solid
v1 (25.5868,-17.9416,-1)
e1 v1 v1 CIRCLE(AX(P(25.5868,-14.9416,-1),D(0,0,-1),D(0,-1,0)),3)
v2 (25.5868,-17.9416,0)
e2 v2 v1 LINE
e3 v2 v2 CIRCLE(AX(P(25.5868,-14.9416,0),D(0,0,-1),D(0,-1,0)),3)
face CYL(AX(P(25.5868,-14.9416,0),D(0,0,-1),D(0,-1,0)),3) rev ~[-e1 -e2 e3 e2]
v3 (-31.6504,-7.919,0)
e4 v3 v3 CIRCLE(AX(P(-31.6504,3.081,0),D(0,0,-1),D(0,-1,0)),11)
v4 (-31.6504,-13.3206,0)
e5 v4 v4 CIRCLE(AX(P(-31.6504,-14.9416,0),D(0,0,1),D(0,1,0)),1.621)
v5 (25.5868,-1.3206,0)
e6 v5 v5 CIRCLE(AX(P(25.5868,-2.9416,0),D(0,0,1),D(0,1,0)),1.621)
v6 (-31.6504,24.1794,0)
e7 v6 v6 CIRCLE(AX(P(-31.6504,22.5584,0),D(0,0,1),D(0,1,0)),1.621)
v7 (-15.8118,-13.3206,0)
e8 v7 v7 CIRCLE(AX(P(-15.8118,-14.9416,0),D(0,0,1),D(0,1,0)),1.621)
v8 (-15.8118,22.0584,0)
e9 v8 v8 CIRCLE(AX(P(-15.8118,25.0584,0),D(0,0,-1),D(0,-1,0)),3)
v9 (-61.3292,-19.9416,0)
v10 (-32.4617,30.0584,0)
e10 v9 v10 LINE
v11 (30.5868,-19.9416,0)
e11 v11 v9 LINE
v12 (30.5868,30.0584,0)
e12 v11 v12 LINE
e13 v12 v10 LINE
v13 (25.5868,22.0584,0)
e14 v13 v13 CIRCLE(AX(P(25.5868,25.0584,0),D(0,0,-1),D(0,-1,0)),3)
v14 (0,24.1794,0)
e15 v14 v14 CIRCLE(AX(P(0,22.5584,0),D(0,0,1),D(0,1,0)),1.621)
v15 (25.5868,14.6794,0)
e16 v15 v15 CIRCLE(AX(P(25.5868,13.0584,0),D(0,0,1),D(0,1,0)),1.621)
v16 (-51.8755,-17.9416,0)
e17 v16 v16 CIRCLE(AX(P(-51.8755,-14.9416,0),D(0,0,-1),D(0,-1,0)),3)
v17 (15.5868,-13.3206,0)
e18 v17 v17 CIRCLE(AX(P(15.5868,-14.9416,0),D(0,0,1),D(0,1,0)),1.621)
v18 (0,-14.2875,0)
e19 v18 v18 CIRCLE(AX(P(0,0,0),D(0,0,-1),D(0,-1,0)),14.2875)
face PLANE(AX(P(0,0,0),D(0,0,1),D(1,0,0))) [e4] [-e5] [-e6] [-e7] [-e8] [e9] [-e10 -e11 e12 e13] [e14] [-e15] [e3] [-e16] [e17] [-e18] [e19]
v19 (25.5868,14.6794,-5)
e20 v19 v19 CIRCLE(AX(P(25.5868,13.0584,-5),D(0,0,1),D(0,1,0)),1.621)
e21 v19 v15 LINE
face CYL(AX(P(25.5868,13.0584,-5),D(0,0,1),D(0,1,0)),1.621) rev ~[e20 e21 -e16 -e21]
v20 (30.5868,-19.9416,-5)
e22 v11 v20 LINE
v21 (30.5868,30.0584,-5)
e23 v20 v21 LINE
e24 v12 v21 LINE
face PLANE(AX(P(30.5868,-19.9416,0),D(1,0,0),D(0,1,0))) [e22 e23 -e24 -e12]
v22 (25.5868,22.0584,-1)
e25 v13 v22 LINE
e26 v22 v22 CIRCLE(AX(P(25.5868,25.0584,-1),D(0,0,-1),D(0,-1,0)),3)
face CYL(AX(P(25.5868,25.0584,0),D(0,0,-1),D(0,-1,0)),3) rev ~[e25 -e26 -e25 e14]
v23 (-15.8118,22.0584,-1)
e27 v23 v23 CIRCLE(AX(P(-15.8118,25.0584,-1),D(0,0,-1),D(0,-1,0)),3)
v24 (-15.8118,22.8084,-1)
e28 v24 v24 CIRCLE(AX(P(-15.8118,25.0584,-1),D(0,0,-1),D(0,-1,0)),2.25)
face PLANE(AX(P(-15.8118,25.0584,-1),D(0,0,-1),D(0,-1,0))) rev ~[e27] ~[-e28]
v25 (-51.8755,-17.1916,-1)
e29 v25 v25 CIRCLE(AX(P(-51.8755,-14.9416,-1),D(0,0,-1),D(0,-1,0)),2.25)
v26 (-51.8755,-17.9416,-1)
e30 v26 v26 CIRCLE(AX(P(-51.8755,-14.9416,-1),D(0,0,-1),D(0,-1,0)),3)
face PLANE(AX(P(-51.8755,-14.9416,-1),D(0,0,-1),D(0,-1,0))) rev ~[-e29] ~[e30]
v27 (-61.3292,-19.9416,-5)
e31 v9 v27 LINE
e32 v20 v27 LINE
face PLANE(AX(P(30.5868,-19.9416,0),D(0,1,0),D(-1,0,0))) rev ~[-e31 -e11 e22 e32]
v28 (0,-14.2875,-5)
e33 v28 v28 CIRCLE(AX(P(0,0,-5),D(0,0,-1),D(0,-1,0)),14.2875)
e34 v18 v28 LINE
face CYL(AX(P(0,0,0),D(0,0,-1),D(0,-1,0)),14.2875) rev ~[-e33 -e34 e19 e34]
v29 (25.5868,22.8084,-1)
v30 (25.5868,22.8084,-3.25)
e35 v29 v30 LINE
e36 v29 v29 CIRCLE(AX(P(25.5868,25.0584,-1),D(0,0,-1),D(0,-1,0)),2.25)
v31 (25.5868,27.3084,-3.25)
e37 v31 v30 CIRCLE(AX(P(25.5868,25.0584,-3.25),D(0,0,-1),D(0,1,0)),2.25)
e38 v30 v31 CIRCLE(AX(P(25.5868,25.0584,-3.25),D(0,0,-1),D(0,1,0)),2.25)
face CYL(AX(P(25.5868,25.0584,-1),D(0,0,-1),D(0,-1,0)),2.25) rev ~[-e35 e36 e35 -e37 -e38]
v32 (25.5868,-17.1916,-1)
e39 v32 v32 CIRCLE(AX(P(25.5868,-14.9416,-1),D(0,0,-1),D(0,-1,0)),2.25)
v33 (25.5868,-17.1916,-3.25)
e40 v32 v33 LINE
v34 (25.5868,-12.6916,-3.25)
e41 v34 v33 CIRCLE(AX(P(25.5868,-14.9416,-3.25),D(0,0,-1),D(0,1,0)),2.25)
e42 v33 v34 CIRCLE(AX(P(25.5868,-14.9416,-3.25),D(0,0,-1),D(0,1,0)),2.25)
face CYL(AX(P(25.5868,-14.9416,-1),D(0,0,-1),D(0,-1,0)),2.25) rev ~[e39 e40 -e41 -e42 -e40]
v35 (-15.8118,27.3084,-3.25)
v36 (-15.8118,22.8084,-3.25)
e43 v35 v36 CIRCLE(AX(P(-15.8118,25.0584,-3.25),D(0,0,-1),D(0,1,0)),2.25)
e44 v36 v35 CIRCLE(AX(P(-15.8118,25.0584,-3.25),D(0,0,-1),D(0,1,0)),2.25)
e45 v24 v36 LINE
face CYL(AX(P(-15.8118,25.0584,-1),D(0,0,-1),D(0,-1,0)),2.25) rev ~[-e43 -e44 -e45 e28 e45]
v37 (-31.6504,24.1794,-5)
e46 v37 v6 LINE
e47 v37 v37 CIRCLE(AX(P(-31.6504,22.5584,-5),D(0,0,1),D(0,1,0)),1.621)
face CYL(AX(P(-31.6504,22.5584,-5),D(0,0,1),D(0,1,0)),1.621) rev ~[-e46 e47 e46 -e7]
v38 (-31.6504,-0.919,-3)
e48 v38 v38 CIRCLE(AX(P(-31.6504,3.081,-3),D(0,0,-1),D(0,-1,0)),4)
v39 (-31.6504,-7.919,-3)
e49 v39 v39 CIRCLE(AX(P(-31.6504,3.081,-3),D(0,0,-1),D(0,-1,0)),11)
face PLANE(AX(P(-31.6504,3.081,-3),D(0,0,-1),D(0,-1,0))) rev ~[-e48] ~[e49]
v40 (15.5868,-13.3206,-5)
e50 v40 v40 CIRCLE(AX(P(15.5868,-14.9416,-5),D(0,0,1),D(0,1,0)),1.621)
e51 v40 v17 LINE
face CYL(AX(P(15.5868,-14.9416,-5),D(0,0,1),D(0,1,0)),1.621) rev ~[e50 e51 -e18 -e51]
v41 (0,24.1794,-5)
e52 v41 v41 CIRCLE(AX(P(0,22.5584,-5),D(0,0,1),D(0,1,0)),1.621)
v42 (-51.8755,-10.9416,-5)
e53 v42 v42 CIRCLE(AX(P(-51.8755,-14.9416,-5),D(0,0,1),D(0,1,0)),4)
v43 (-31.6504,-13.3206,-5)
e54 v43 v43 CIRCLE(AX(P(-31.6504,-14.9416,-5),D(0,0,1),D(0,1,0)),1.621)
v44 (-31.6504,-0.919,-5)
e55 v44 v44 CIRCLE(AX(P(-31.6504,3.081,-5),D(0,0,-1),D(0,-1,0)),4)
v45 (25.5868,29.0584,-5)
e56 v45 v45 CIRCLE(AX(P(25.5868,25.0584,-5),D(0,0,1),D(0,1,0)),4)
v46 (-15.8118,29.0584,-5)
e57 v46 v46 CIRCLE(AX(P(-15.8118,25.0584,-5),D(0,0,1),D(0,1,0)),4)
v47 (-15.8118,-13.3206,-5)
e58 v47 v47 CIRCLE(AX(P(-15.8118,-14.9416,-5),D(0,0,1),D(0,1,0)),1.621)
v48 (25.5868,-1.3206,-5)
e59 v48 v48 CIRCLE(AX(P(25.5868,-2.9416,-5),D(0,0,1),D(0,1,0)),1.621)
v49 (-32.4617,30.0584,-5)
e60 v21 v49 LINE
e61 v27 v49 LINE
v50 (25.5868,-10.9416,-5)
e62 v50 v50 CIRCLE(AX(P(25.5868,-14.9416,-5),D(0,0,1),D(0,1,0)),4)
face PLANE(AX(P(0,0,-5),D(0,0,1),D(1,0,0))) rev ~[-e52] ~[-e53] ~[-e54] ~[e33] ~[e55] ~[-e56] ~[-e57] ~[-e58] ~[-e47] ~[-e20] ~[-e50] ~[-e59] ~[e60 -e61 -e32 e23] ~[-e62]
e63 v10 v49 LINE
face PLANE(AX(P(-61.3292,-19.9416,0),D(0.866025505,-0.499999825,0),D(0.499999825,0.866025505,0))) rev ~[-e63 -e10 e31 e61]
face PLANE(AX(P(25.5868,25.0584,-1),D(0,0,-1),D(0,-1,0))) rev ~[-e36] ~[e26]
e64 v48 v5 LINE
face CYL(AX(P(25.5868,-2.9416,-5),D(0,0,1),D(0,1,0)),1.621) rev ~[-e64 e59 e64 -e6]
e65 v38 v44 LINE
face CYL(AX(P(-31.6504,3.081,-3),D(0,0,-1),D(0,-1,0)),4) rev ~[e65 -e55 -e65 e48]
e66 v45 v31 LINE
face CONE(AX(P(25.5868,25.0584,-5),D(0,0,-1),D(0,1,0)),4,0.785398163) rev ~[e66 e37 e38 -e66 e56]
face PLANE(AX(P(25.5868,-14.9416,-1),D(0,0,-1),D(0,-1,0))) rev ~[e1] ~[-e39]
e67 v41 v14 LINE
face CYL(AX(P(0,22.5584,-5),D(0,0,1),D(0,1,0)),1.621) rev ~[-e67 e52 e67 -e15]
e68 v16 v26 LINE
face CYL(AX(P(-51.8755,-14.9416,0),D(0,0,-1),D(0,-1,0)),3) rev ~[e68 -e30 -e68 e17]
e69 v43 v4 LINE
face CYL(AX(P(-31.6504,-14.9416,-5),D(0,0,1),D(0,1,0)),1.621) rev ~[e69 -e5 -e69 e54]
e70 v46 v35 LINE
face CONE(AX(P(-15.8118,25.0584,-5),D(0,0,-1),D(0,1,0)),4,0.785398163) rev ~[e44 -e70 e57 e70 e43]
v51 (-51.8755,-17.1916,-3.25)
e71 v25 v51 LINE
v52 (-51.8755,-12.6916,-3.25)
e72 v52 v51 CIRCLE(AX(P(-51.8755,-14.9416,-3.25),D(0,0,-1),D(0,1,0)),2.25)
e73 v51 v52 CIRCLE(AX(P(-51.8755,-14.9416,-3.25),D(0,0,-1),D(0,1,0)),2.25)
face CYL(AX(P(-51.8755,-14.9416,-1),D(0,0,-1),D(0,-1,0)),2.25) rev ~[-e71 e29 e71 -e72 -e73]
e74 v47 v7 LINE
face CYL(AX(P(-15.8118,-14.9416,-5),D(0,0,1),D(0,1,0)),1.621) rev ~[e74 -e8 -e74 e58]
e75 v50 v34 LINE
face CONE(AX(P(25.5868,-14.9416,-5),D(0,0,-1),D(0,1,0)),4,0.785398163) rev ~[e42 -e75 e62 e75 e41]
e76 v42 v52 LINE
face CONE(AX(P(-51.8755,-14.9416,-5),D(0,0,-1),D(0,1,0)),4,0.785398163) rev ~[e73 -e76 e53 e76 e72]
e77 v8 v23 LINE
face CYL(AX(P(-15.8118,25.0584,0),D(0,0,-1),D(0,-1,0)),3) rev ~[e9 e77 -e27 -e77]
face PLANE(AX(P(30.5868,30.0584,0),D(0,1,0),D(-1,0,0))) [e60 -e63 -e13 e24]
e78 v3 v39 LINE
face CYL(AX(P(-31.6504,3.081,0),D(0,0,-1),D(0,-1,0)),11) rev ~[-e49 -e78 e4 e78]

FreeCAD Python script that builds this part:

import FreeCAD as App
import Part
import Sketcher
Q = App.Units.Quantity

doc = App.newDocument("Part")
body = doc.addObject("PartDesign::Body", "Body")

sketch1 = body.newObject("Sketcher::SketchObject", "Sketch")
sketch1.AttachmentSupport = (doc.getObject("XY_Plane"), [""])
sketch1.MapMode = "FlatFace"
sketch1.addGeometry([
    Part.LineSegment(App.Vector(-61, -20, 0), App.Vector(31, -20, 0)),
    Part.LineSegment(App.Vector(31, -20, 0), App.Vector(31, 30, 0)),
    Part.LineSegment(App.Vector(31, 30, 0), App.Vector(-32, 30, 0)),
    Part.LineSegment(App.Vector(-32, 30, 0), App.Vector(-61, -20, 0)),
], False)
sketch1.addConstraint([
    Sketcher.Constraint("Coincident", 0, 2, 1, 1),
    Sketcher.Constraint("Coincident", 1, 2, 2, 1),
    Sketcher.Constraint("Coincident", 2, 2, 3, 1),
    Sketcher.Constraint("Coincident", 3, 2, 0, 1),
    Sketcher.Constraint("Horizontal", 0),
    Sketcher.Constraint("Vertical", 1),
    Sketcher.Constraint("Horizontal", 2),
    Sketcher.Constraint("Angle", 3, Q("-120 deg")),
    Sketcher.Constraint("DistanceY", 1, 1, 1, 2, 50.0),
    Sketcher.Constraint("DistanceX", 0, 1, 0, 2, 91.916),
    Sketcher.Constraint("DistanceX", -1, 1, 0, 2, 30.5868),
    Sketcher.Constraint("DistanceY", 0, 2, -1, 1, 19.9416),
])
pad1 = body.newObject("PartDesign::Pad", "Pad")
pad1.Profile = sketch1
pad1.Length = 5
pad1.Reversed = True

sketch2 = body.newObject("Sketcher::SketchObject", "Sketch001")
sketch2.AttachmentSupport = (doc.getObject("XY_Plane"), [""])
sketch2.MapMode = "FlatFace"
sketch2.addGeometry([
    Part.Circle(App.Vector(-15.8, 25.1, 0), App.Vector(0, 0, 1), 2.2),
    Part.Circle(App.Vector(-51.9, -14.9, 0), App.Vector(0, 0, 1), 2.2),
    Part.Circle(App.Vector(25.6, -14.9, 0), App.Vector(0, 0, 1), 2.2),
    Part.Circle(App.Vector(25.6, 25.1, 0), App.Vector(0, 0, 1), 2.2),
], False)
sketch2.addConstraint([
    Sketcher.Constraint("Equal", 0, 1),
    Sketcher.Constraint("Equal", 1, 2),
    Sketcher.Constraint("Equal", 2, 3),
    Sketcher.Constraint("Horizontal", 1, 3, 2, 3),
    Sketcher.Constraint("Horizontal", 0, 3, 3, 3),
    Sketcher.Constraint("Vertical", 2, 3, 3, 3),
    Sketcher.Constraint("Diameter", 0, 4.5),
    Sketcher.Constraint("DistanceY", 1, 3, 0, 3, 40.0),
    Sketcher.Constraint("DistanceX", 0, 3, -1, 1, 15.8118),
    Sketcher.Constraint("DistanceY", -1, 1, 0, 3, 25.0584),
    Sketcher.Constraint("DistanceX", 1, 3, -1, 1, 51.8755),
    Sketcher.Constraint("DistanceX", -1, 1, 2, 3, 25.5868),
])
doc.recompute()
hole = body.newObject("PartDesign::Hole", "Hole")
hole.Profile = sketch2
hole.ThreadType = "None"
hole.Diameter = 4.5
hole.DepthType = "ThroughAll"
hole.HoleCutType = "Counterbore"
hole.HoleCutDiameter = 6
hole.HoleCutDepth = 1

sketch3 = body.newObject("Sketcher::SketchObject", "Sketch002")
sketch3.AttachmentSupport = (doc.getObject("XY_Plane"), [""])
sketch3.MapMode = "FlatFace"
sketch3.addGeometry(Part.Circle(App.Vector(0, 0, 0), App.Vector(0, 0, 1), 14), False)
sketch3.addConstraint([
    Sketcher.Constraint("Coincident", 0, 3, -1, 1),
    Sketcher.Constraint("Diameter", 0, 28.575),
])
doc.recompute()
hole2 = body.newObject("PartDesign::Hole", "Hole001")
hole2.Profile = sketch3
hole2.ThreadType = "None"
hole2.Diameter = 28.575
hole2.DepthType = "ThroughAll"

sketch4 = body.newObject("Sketcher::SketchObject", "Sketch003")
sketch4.AttachmentSupport = (doc.getObject("XY_Plane"), [""])
sketch4.MapMode = "FlatFace"
sketch4.addGeometry(Part.Circle(App.Vector(-31.7, 3.1, 0), App.Vector(0, 0, 1), 4), False)
sketch4.addConstraint([
    Sketcher.Constraint("Diameter", 0, 8.0),
    Sketcher.Constraint("DistanceY", -1, 1, 0, 3, 3.081),
    Sketcher.Constraint("DistanceX", 0, 3, -1, 1, 31.6504),
])
doc.recompute()
hole3 = body.newObject("PartDesign::Hole", "Hole002")
hole3.Profile = sketch4
hole3.ThreadType = "None"
hole3.Diameter = 8
hole3.DepthType = "Dimension"
hole3.Depth = 5
hole3.DrillPoint = "Flat"
hole3.HoleCutType = "Counterbore"
hole3.HoleCutDiameter = 22
hole3.HoleCutDepth = 3

sketch5 = body.newObject("Sketcher::SketchObject", "Sketch004")
sketch5.AttachmentSupport = (doc.getObject("XY_Plane"), [""])
sketch5.MapMode = "FlatFace"
sketch5.AttachmentOffset = App.Placement(App.Vector(0, 0, -5), App.Rotation())
sketch5.addGeometry([
    Part.Circle(App.Vector(25.6, 25.1, 0), App.Vector(0, 0, 1), 2),
    Part.Circle(App.Vector(-15.8, 25.1, 0), App.Vector(0, 0, 1), 2),
    Part.Circle(App.Vector(25.6, -14.9, 0), App.Vector(0, 0, 1), 2),
    Part.Circle(App.Vector(-51.9, -14.9, 0), App.Vector(0, 0, 1), 2),
], False)
sketch5.addConstraint([
    Sketcher.Constraint("Equal", 0, 1),
    Sketcher.Constraint("Equal", 1, 2),
    Sketcher.Constraint("Equal", 2, 3),
    Sketcher.Constraint("Horizontal", 0, 3, 1, 3),
    Sketcher.Constraint("Horizontal", 2, 3, 3, 3),
    Sketcher.Constraint("Vertical", 0, 3, 2, 3),
    Sketcher.Constraint("Diameter", 0, 4.0),
    Sketcher.Constraint("DistanceY", 2, 3, 0, 3, 40.0),
    Sketcher.Constraint("DistanceX", -1, 1, 0, 3, 25.5868),
    Sketcher.Constraint("DistanceY", -1, 1, 0, 3, 25.0584),
    Sketcher.Constraint("DistanceX", 1, 3, -1, 1, 15.8118),
    Sketcher.Constraint("DistanceX", 3, 3, -1, 1, 51.8755),
])
doc.recompute()
hole4 = body.newObject("PartDesign::Hole", "Hole003")
hole4.Profile = sketch5
hole4.ThreadType = "None"
hole4.Diameter = 4
hole4.DepthType = "ThroughAll"
hole4.HoleCutType = "Countersink"
hole4.HoleCutDiameter = 8
hole4.HoleCutCountersinkAngle = 90
hole4.Reversed = True

sketch6 = body.newObject("Sketcher::SketchObject", "Sketch005")
sketch6.AttachmentSupport = (doc.getObject("XY_Plane"), [""])
sketch6.MapMode = "FlatFace"
sketch6.AttachmentOffset = App.Placement(App.Vector(0, 0, -5), App.Rotation())
sketch6.addGeometry([
    Part.Circle(App.Vector(25.6, -2.9, 0), App.Vector(0, 0, 1), 1.6),
    Part.Circle(App.Vector(25.6, 13.1, 0), App.Vector(0, 0, 1), 1.6),
    Part.Circle(App.Vector(-15.8, -14.9, 0), App.Vector(0, 0, 1), 1.6),
    Part.Circle(App.Vector(0, 22.6, 0), App.Vector(0, 0, 1), 1.6),
    Part.Circle(App.Vector(15.6, -14.9, 0), App.Vector(0, 0, 1), 1.6),
    Part.Circle(App.Vector(-31.7, -14.9, 0), App.Vector(0, 0, 1), 1.6),
    Part.Circle(App.Vector(-31.7, 22.6, 0), App.Vector(0, 0, 1), 1.6),
], False)
sketch6.addConstraint([
    Sketcher.Constraint("Equal", 0, 1),
    Sketcher.Constraint("Equal", 1, 2),
    Sketcher.Constraint("Equal", 2, 3),
    Sketcher.Constraint("Equal", 3, 4),
    Sketcher.Constraint("Equal", 4, 5),
    Sketcher.Constraint("Equal", 5, 6),
    Sketcher.Constraint("PointOnObject", 3, 3, -2),
    Sketcher.Constraint("Horizontal", 2, 3, 4, 3),
    Sketcher.Constraint("Horizontal", 4, 3, 5, 3),
    Sketcher.Constraint("Horizontal", 3, 3, 6, 3),
    Sketcher.Constraint("Vertical", 0, 3, 1, 3),
    Sketcher.Constraint("Vertical", 5, 3, 6, 3),
    Sketcher.Constraint("Diameter", 0, 3.242),
    Sketcher.Constraint("DistanceY", 0, 3, 1, 3, 16.0),
    Sketcher.Constraint("DistanceY", 2, 3, 0, 3, 12.0),
    Sketcher.Constraint("DistanceX", 4, 3, 0, 3, 10.0),
    Sketcher.Constraint("DistanceY", 1, 3, 3, 3, 9.5),
    Sketcher.Constraint("DistanceX", -1, 1, 0, 3, 25.5868),
    Sketcher.Constraint("DistanceY", 0, 3, -1, 1, 2.9416),
    Sketcher.Constraint("DistanceX", 2, 3, -1, 1, 15.8118),
    Sketcher.Constraint("DistanceX", 5, 3, -1, 1, 31.6504),
])
doc.recompute()
hole5 = body.newObject("PartDesign::Hole", "Hole004")
hole5.Profile = sketch6
hole5.ThreadType = "None"
hole5.Diameter = 3.242
hole5.DepthType = "Dimension"
hole5.Depth = 10
hole5.DrillPoint = "Flat"
hole5.Reversed = True

doc.recompute()
